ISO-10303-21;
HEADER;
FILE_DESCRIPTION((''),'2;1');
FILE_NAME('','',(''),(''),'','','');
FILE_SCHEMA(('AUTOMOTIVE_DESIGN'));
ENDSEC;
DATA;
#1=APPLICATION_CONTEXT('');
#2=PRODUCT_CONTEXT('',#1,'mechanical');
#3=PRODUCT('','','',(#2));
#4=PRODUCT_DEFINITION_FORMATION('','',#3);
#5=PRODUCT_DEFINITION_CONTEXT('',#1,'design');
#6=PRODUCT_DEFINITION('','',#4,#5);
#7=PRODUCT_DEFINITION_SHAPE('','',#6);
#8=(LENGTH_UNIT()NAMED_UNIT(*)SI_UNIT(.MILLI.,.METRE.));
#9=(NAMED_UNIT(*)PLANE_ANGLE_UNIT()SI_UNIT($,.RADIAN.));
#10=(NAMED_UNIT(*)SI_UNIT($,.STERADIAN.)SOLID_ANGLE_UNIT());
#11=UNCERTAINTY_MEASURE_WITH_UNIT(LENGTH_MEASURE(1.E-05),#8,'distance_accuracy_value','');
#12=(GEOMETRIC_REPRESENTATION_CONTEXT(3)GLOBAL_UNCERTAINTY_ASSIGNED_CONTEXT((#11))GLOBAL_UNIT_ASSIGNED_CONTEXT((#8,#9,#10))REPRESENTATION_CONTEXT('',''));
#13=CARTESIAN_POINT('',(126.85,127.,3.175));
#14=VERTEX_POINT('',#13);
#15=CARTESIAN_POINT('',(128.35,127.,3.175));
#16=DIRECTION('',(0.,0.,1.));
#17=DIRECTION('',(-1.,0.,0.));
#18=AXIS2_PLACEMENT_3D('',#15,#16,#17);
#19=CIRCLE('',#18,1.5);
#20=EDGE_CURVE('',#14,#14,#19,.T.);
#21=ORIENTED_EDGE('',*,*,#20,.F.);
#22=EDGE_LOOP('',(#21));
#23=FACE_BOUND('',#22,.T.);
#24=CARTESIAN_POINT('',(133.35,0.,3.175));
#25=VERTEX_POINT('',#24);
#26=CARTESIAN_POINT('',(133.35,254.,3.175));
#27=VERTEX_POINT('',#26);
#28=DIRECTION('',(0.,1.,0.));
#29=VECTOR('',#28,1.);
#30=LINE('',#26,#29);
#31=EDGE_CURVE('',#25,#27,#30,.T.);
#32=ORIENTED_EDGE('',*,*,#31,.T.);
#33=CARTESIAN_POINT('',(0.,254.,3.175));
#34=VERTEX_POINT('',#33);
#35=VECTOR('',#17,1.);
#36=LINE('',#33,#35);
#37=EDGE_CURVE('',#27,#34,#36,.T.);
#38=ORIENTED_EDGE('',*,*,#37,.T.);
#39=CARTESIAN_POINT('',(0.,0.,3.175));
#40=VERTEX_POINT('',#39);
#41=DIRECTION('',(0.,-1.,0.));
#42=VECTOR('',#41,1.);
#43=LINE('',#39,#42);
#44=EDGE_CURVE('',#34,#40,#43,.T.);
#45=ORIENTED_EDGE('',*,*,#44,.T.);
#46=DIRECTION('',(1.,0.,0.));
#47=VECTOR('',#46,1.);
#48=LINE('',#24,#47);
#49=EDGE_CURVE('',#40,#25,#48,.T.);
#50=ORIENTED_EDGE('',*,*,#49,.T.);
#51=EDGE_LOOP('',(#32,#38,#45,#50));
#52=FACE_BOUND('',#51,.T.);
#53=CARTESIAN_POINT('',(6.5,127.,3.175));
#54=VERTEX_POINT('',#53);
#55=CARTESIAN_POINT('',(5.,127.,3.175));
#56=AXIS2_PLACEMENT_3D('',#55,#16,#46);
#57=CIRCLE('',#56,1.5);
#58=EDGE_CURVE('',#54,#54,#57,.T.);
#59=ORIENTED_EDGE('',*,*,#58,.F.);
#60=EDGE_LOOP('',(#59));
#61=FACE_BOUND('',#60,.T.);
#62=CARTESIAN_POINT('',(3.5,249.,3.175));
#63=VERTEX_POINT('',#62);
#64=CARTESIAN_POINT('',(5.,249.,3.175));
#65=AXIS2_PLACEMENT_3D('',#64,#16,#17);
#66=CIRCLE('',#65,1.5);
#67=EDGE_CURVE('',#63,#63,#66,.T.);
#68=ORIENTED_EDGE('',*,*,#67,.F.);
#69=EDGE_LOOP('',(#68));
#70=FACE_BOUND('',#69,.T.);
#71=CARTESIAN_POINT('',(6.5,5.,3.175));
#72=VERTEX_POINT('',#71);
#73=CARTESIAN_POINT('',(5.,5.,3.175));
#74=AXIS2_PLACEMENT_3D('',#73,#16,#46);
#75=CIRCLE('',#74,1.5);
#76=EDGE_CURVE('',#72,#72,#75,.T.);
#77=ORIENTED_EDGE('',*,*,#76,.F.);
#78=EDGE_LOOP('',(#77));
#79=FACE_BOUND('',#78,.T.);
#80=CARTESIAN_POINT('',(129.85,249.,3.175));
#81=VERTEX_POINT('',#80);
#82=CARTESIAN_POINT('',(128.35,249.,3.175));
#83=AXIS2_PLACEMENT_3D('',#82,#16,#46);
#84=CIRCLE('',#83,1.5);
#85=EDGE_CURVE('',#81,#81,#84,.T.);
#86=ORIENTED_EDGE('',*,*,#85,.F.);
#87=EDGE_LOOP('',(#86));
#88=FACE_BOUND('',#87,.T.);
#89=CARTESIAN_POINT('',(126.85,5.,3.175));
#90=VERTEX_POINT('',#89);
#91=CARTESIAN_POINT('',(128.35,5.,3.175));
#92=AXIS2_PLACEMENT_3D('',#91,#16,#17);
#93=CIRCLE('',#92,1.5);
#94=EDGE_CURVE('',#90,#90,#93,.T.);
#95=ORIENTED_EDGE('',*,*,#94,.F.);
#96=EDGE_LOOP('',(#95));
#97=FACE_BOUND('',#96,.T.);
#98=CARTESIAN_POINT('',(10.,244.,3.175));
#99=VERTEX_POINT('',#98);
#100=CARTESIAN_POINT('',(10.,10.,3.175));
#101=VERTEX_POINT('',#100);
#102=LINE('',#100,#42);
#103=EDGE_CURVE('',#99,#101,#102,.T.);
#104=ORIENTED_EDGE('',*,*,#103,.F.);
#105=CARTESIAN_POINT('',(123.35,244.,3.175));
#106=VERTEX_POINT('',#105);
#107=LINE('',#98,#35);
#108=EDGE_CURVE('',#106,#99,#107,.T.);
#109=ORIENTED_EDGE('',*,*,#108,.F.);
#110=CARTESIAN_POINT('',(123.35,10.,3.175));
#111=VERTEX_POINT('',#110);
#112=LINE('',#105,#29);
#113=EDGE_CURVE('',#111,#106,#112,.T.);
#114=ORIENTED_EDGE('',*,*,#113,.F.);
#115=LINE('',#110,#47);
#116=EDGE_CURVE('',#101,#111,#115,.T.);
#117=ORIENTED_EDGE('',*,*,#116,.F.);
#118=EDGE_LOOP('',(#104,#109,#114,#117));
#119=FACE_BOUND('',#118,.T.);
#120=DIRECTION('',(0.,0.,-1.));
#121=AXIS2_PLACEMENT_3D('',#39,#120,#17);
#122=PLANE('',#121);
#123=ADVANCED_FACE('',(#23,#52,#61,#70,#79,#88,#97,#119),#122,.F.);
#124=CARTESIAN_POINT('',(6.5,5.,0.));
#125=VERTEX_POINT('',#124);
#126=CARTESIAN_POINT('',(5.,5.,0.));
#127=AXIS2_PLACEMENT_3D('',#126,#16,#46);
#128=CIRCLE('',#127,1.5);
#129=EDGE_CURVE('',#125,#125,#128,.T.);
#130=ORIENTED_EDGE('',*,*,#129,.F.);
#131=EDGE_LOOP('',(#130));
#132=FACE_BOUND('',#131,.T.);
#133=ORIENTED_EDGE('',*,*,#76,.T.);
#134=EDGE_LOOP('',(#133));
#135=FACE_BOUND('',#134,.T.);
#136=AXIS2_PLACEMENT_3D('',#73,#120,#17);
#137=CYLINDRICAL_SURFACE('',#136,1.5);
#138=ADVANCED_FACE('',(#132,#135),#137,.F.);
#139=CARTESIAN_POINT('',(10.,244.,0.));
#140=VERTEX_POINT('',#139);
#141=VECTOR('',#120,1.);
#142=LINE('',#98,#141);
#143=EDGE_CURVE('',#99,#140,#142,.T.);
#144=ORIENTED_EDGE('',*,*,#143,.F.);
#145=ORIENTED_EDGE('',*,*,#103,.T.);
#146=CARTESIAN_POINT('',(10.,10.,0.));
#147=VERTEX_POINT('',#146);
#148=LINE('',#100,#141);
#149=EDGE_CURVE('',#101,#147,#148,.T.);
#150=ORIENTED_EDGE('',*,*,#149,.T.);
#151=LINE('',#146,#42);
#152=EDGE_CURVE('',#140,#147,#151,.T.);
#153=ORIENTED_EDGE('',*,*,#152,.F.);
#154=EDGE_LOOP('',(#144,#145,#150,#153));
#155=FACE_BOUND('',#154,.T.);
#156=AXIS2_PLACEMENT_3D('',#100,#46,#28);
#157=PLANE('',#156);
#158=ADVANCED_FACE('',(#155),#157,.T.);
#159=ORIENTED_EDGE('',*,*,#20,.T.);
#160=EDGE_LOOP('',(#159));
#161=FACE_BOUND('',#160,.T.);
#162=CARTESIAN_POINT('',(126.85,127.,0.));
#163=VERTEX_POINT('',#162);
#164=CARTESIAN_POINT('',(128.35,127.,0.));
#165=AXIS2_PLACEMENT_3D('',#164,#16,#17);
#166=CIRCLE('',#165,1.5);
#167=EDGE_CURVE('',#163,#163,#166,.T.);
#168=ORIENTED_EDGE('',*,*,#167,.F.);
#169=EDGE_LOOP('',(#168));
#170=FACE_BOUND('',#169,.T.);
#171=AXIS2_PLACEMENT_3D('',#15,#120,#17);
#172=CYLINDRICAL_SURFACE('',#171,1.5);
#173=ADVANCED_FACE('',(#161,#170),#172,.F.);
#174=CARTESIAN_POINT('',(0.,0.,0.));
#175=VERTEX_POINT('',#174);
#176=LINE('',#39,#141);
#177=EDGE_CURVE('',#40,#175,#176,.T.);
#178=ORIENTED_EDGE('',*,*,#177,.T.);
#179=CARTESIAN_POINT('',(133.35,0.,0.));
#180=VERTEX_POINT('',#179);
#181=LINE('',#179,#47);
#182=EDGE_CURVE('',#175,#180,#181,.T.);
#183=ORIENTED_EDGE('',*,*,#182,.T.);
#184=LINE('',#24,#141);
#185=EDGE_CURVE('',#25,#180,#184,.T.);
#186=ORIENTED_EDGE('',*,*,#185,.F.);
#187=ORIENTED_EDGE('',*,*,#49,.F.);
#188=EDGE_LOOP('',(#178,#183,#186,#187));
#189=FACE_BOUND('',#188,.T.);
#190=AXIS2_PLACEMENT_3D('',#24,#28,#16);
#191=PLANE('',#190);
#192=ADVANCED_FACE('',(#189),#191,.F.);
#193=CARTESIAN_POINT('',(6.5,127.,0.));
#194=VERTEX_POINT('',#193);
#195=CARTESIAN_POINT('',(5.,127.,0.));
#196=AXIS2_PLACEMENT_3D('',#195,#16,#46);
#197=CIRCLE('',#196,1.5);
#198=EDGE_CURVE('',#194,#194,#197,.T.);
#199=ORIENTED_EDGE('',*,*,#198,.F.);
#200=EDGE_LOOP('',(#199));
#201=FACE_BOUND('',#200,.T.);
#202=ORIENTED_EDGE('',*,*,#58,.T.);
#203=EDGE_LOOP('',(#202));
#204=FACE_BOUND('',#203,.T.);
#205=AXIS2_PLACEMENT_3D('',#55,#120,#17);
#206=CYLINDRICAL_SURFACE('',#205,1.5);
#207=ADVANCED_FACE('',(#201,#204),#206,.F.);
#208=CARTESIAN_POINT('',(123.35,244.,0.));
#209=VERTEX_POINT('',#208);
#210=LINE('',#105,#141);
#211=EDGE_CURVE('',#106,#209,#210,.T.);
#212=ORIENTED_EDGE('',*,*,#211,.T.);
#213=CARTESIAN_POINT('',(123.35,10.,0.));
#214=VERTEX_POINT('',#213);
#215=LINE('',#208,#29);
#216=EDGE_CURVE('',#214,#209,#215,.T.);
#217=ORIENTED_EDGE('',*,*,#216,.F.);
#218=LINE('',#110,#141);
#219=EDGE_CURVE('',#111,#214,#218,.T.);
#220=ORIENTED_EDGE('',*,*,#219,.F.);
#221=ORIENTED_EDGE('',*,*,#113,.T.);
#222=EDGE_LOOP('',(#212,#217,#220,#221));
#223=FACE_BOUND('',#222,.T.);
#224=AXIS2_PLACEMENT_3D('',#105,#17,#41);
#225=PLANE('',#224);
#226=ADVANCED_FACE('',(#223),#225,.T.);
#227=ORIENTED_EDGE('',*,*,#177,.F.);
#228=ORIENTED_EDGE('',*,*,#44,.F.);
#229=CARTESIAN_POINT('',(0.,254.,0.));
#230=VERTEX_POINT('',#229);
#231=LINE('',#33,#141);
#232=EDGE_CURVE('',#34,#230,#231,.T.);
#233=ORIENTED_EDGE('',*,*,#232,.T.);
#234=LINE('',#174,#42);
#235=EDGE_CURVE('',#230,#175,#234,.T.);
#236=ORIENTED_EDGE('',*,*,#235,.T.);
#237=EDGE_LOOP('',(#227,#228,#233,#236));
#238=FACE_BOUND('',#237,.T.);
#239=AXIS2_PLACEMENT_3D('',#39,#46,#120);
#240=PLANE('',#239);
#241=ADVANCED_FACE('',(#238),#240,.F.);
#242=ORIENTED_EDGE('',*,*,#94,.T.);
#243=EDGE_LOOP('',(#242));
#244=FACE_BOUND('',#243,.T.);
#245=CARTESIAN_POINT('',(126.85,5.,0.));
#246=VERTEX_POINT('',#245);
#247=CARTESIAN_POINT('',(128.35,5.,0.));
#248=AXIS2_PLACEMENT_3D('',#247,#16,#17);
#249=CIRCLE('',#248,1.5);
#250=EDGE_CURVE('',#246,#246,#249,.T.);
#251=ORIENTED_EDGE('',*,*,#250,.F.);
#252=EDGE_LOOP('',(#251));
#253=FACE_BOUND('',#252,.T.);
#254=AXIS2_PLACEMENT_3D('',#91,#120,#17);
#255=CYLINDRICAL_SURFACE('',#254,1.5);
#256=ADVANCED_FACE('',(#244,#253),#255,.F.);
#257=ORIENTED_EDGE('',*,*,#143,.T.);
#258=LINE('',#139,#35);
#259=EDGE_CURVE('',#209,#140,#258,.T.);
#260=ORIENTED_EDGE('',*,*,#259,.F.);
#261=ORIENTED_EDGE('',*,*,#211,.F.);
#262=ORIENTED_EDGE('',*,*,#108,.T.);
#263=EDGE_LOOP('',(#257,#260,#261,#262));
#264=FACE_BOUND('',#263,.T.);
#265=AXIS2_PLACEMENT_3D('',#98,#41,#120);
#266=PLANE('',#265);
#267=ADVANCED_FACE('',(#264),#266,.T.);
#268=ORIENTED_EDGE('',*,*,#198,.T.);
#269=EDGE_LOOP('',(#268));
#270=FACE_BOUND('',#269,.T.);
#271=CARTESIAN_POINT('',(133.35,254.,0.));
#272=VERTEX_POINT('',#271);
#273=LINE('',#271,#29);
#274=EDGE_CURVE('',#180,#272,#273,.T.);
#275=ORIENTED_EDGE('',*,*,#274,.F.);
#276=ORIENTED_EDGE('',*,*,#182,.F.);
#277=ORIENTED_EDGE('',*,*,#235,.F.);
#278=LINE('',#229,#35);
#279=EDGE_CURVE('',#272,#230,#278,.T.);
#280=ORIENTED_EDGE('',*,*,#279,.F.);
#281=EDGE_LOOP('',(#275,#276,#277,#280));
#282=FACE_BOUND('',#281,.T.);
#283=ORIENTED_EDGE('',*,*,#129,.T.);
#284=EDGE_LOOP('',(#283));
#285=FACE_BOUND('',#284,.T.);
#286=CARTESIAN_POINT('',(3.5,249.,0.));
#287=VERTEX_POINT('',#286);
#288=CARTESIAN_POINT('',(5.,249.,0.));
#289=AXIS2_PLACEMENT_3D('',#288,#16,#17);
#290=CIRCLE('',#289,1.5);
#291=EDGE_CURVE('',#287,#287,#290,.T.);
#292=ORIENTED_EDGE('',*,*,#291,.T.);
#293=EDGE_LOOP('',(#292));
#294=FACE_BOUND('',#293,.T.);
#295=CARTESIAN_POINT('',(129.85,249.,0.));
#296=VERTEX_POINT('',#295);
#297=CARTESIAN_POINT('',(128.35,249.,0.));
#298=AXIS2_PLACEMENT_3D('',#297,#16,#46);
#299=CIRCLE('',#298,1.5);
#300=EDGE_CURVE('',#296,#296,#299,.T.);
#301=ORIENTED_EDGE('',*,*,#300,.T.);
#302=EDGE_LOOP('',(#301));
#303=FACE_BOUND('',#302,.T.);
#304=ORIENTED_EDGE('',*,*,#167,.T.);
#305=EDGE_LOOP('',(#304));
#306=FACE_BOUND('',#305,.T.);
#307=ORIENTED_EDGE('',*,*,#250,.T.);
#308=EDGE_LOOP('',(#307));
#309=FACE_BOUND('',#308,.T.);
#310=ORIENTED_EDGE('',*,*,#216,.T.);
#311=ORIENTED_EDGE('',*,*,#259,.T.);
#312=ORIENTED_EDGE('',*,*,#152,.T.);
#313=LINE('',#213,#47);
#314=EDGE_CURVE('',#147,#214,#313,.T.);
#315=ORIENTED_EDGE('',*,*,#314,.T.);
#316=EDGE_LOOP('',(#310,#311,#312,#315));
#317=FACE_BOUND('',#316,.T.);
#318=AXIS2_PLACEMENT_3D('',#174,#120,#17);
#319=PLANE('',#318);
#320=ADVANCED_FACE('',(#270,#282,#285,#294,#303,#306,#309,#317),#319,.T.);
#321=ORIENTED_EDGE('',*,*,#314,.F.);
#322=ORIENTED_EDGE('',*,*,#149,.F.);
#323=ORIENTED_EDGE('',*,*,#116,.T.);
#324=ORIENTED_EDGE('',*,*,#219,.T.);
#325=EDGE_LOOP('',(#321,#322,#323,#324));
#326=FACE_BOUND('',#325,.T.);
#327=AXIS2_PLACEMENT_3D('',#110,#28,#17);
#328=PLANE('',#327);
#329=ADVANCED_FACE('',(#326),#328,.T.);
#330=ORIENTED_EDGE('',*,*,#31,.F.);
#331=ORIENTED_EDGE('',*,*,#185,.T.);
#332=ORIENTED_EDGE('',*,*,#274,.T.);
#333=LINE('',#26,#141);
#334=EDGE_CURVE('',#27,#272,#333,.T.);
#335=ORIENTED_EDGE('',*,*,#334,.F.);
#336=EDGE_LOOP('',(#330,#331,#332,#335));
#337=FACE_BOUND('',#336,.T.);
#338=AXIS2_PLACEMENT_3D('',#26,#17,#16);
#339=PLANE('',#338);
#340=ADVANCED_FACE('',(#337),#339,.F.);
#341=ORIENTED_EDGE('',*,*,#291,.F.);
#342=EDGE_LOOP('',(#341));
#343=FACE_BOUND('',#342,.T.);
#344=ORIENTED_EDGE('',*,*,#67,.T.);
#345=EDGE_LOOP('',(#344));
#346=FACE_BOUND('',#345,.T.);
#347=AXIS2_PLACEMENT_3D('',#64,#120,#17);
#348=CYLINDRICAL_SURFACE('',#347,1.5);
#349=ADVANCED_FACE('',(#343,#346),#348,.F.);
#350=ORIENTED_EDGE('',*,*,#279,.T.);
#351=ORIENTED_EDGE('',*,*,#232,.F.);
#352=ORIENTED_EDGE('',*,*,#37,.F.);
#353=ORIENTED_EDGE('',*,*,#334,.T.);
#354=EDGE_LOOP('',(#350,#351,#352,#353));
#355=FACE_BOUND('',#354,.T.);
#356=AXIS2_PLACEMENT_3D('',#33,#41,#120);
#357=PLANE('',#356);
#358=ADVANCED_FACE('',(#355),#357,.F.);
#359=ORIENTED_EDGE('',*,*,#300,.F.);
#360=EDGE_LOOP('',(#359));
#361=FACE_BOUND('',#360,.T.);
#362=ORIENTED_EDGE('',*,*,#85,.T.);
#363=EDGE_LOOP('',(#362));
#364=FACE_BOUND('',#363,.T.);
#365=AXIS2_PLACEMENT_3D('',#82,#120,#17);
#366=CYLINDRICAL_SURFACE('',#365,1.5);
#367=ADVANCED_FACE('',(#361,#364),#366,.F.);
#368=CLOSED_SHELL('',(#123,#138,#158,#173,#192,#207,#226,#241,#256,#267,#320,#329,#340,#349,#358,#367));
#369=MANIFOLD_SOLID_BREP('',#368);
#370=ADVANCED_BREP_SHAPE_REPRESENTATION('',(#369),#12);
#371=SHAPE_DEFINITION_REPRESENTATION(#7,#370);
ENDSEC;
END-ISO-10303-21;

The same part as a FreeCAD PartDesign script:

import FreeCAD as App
import Part
import Sketcher
Q = App.Units.Quantity

doc = App.newDocument("Part")
body = doc.addObject("PartDesign::Body", "Body")

sketch1 = body.newObject("Sketcher::SketchObject", "Sketch")
sketch1.AttachmentSupport = (doc.getObject("XY_Plane"), [""])
sketch1.MapMode = "FlatFace"
sketch1.addGeometry(Part.LineSegment(App.Vector(0, 254, 0), App.Vector(0, 0, 0)), False)
sketch1.addGeometry(Part.LineSegment(App.Vector(0, 0, 0), App.Vector(133.3, 0, 0)), False)
sketch1.addGeometry(Part.LineSegment(App.Vector(133.3, 0, 0), App.Vector(133.3, 254, 0)), False)
sketch1.addGeometry(Part.LineSegment(App.Vector(133.3, 254, 0), App.Vector(0, 254, 0)), False)
sketch1.addGeometry(Part.Circle(App.Vector(5, 5, 0), App.Vector(0, 0, 1), 1.5), False)
sketch1.addGeometry(Part.Circle(App.Vector(128.3, 5, 0), App.Vector(0, 0, 1), 1.5), False)
sketch1.addGeometry(Part.Circle(App.Vector(5, 127, 0), App.Vector(0, 0, 1), 1.5), False)
sketch1.addGeometry(Part.Circle(App.Vector(5, 249, 0), App.Vector(0, 0, 1), 1.5), False)
sketch1.addGeometry(Part.LineSegment(App.Vector(123.3, 10, 0), App.Vector(10, 10, 0)), False)
sketch1.addGeometry(Part.LineSegment(App.Vector(10, 10, 0), App.Vector(10, 244, 0)), False)
sketch1.addGeometry(Part.LineSegment(App.Vector(10, 244, 0), App.Vector(123.3, 244, 0)), False)
sketch1.addGeometry(Part.LineSegment(App.Vector(123.3, 244, 0), App.Vector(123.3, 10, 0)), False)
sketch1.addGeometry(Part.Circle(App.Vector(128.3, 127, 0), App.Vector(0, 0, 1), 1.5), False)
sketch1.addGeometry(Part.Circle(App.Vector(128.3, 249, 0), App.Vector(0, 0, 1), 1.5), False)
sketch1.addConstraint(Sketcher.Constraint("Coincident", 0, 2, 1, 1))
sketch1.addConstraint(Sketcher.Constraint("Coincident", 1, 2, 2, 1))
sketch1.addConstraint(Sketcher.Constraint("Coincident", 2, 2, 3, 1))
sketch1.addConstraint(Sketcher.Constraint("Coincident", 3, 2, 0, 1))
sketch1.addConstraint(Sketcher.Constraint("Coincident", 8, 2, 9, 1))
sketch1.addConstraint(Sketcher.Constraint("Coincident", 9, 2, 10, 1))
sketch1.addConstraint(Sketcher.Constraint("Coincident", 10, 2, 11, 1))
sketch1.addConstraint(Sketcher.Constraint("Coincident", 11, 2, 8, 1))
sketch1.addConstraint(Sketcher.Constraint("Vertical", 0))
sketch1.addConstraint(Sketcher.Constraint("Horizontal", 1))
sketch1.addConstraint(Sketcher.Constraint("Vertical", 2))
sketch1.addConstraint(Sketcher.Constraint("Horizontal", 3))
sketch1.addConstraint(Sketcher.Constraint("Horizontal", 8))
sketch1.addConstraint(Sketcher.Constraint("Vertical", 9))
sketch1.addConstraint(Sketcher.Constraint("Horizontal", 10))
sketch1.addConstraint(Sketcher.Constraint("Vertical", 11))
sketch1.addConstraint(Sketcher.Constraint("Coincident", 0, 2, -1, 1))
sketch1.addConstraint(Sketcher.Constraint("Equal", 4, 5))
sketch1.addConstraint(Sketcher.Constraint("Equal", 5, 6))
sketch1.addConstraint(Sketcher.Constraint("Equal", 6, 7))
sketch1.addConstraint(Sketcher.Constraint("Equal", 7, 12))
sketch1.addConstraint(Sketcher.Constraint("Equal", 12, 13))
sketch1.addConstraint(Sketcher.Constraint("Horizontal", 4, 3, 5, 3))
sketch1.addConstraint(Sketcher.Constraint("Horizontal", 6, 3, 12, 3))
sketch1.addConstraint(Sketcher.Constraint("Horizontal", 7, 3, 13, 3))
sketch1.addConstraint(Sketcher.Constraint("Vertical", 4, 3, 6, 3))
sketch1.addConstraint(Sketcher.Constraint("Vertical", 6, 3, 7, 3))
sketch1.addConstraint(Sketcher.Constraint("Vertical", 5, 3, 12, 3))
sketch1.addConstraint(Sketcher.Constraint("Vertical", 12, 3, 13, 3))
sketch1.addConstraint(Sketcher.Constraint("DistanceY", 0, 2, 0, 1, Q("10 in")))
sketch1.addConstraint(Sketcher.Constraint("DistanceY", -1, 1, 6, 3, Q("5 in")))
sketch1.addConstraint(Sketcher.Constraint("DistanceX", 1, 1, 1, 2, Q("5.25 in")))
sketch1.addConstraint(Sketcher.Constraint("Diameter", 4, Q("3 mm")))
sketch1.addConstraint(Sketcher.Constraint("DistanceX", 8, 2, 8, 1, Q("113.35 mm")))
sketch1.addConstraint(Sketcher.Constraint("DistanceY", 9, 1, 9, 2, Q("234 mm")))
sketch1.addConstraint(Sketcher.Constraint("DistanceX", -1, 1, 4, 3, Q("5 mm")))
sketch1.addConstraint(Sketcher.Constraint("DistanceY", -1, 1, 4, 3, Q("5 mm")))
sketch1.addConstraint(Sketcher.Constraint("DistanceX", -1, 1, 5, 3, Q("128.35 mm")))
sketch1.addConstraint(Sketcher.Constraint("DistanceY", -1, 1, 7, 3, Q("249 mm")))
sketch1.addConstraint(Sketcher.Constraint("DistanceX", -1, 1, 8, 2, Q("10 mm")))
sketch1.addConstraint(Sketcher.Constraint("DistanceY", -1, 1, 8, 2, Q("10 mm")))
pad1 = body.newObject("PartDesign::Pad", "Pad")
pad1.Profile = sketch1
pad1.Length = Q("0.125 in")

doc.recompute()
